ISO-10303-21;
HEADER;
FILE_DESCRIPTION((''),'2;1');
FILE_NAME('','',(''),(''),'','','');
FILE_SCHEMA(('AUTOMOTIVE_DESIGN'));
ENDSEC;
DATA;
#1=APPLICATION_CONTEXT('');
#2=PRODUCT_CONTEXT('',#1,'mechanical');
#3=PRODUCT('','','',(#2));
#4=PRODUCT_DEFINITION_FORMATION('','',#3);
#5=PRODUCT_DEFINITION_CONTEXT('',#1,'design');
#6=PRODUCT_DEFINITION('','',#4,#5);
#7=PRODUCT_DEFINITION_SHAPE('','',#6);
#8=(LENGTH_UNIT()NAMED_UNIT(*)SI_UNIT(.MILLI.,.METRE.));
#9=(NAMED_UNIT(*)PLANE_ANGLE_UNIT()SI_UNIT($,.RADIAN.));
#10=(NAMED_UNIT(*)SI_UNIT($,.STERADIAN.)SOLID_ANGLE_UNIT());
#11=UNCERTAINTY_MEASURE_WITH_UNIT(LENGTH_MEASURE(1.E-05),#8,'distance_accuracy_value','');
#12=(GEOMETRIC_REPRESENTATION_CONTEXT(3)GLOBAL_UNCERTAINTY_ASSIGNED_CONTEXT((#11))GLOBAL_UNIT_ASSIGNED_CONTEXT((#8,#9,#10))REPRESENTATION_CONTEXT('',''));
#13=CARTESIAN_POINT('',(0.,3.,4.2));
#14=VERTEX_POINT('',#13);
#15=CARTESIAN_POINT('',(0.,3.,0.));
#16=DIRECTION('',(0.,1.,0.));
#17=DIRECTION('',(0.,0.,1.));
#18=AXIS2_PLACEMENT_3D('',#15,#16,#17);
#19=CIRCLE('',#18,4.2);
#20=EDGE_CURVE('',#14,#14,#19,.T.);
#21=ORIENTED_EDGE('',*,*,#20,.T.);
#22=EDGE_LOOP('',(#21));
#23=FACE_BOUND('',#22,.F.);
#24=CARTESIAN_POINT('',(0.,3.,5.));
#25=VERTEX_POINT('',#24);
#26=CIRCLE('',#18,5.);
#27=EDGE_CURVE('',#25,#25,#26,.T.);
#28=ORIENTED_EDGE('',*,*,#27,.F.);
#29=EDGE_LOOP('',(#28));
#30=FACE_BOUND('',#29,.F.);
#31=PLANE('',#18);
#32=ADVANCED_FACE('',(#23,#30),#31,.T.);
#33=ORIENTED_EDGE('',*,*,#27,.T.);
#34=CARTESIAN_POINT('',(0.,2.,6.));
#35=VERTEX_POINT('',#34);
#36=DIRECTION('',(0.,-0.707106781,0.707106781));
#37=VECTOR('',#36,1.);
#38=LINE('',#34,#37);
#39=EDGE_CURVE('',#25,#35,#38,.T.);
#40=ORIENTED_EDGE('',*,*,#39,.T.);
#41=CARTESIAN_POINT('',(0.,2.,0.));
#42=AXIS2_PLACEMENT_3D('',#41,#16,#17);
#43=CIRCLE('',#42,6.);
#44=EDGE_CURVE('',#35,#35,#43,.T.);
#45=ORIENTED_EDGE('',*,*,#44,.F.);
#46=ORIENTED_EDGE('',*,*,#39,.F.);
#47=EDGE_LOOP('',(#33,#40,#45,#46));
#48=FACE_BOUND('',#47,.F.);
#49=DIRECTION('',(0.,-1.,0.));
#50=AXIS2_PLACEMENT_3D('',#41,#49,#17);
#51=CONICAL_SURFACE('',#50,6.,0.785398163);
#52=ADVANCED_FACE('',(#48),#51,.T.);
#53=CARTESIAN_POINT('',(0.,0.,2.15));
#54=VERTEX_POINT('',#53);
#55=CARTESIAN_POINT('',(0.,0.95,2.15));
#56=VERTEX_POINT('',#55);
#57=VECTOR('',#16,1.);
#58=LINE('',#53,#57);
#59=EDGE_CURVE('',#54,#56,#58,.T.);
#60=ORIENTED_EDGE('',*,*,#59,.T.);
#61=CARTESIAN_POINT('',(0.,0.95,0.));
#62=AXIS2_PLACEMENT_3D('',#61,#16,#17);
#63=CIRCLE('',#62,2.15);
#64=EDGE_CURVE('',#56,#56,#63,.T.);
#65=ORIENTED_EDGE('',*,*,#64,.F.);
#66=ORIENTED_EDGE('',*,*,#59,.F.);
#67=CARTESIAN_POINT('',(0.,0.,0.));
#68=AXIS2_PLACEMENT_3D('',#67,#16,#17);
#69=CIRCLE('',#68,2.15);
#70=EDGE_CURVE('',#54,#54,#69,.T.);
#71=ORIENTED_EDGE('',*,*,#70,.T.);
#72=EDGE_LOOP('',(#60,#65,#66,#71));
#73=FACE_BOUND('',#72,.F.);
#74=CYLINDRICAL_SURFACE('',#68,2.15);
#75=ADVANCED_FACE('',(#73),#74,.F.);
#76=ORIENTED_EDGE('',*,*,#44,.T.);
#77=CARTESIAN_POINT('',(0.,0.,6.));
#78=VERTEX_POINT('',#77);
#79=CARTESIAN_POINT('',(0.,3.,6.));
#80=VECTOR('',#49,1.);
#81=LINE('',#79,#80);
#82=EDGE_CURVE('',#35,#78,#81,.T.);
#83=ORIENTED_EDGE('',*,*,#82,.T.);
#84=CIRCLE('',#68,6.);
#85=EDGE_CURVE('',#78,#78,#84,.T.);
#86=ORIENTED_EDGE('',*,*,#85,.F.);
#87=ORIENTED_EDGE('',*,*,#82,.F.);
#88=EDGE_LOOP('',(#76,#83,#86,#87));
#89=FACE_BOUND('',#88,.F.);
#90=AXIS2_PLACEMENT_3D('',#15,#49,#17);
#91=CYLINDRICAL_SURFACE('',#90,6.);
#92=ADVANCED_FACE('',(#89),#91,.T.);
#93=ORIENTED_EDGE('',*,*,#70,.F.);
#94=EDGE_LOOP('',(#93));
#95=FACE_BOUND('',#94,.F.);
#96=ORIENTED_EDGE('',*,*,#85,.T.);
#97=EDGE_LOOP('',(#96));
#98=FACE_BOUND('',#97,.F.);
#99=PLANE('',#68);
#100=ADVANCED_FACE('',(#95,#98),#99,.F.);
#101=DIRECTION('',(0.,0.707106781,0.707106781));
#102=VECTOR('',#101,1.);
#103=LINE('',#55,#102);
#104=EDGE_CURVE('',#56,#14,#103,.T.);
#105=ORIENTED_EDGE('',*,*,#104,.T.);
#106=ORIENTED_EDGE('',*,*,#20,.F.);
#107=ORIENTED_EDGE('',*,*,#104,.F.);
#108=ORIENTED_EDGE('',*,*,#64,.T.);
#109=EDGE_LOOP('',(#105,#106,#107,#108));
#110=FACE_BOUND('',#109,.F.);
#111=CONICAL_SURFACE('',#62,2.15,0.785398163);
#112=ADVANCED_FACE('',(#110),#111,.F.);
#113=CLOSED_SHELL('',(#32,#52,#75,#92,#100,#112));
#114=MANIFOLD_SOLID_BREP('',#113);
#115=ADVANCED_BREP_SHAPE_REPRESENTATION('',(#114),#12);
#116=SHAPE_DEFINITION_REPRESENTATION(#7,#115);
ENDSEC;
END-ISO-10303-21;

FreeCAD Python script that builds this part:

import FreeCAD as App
import Part
import Sketcher
from FreeCAD import Vector
Q = App.Units.Quantity


def edges_at(feature, points):
    """Names of the edges that pass closest to the given points."""
    edges = feature.Shape.Edges
    near = lambda p: min(range(len(edges)), key=lambda i: edges[i].distToShape(Part.Vertex(*p))[0])
    return sorted({f"Edge{near(p) + 1}" for p in points})

doc = App.newDocument("Part")
body = doc.addObject("PartDesign::Body", "Body")

sketch1 = body.newObject("Sketcher::SketchObject", "Sketch")
sketch1.AttachmentSupport = (doc.getObject("YZ_Plane"), [""])
sketch1.MapMode = "FlatFace"
sketch1.addGeometry(Part.LineSegment(Vector(0, 6, 0), Vector(0, 2.1, 0)), False)
sketch1.addGeometry(Part.LineSegment(Vector(0, 2.1, 0), Vector(0.9, 2.1, 0)), False)
sketch1.addGeometry(Part.LineSegment(Vector(0.9, 2.1, 0), Vector(3, 4.2, 0)), False)
sketch1.addGeometry(Part.LineSegment(Vector(3, 4.2, 0), Vector(3, 6, 0)), False)
sketch1.addGeometry(Part.LineSegment(Vector(3, 6, 0), Vector(0, 6, 0)), False)
sketch1.addConstraint(Sketcher.Constraint("Coincident", 0, 2, 1, 1))
sketch1.addConstraint(Sketcher.Constraint("Coincident", 1, 2, 2, 1))
sketch1.addConstraint(Sketcher.Constraint("Coincident", 2, 2, 3, 1))
sketch1.addConstraint(Sketcher.Constraint("Coincident", 3, 2, 4, 1))
sketch1.addConstraint(Sketcher.Constraint("Coincident", 4, 2, 0, 1))
sketch1.addConstraint(Sketcher.Constraint("Vertical", 0))
sketch1.addConstraint(Sketcher.Constraint("Horizontal", 1))
sketch1.addConstraint(Sketcher.Constraint("Vertical", 3))
sketch1.addConstraint(Sketcher.Constraint("Horizontal", 4))
sketch1.addConstraint(Sketcher.Constraint("PointOnObject", 0, 2, -2))
sketch1.addConstraint(Sketcher.Constraint("DistanceX", 4, 2, 4, 1, Q("3 mm")))
sketch1.addConstraint(Sketcher.Constraint("Angle", 2, Q("45 deg")))
sketch1.addConstraint(Sketcher.Constraint("DistanceY", 3, 1, 3, 2, Q("1.8 mm")))
sketch1.addConstraint(Sketcher.Constraint("DistanceY", -1, 1, 3, 2, Q("6 mm")))
sketch1.addConstraint(Sketcher.Constraint("DistanceX", 1, 1, 1, 2, Q("0.95 mm")))
revolution = body.newObject("PartDesign::Revolution", "Revolution")
revolution.Profile = sketch1
revolution.ReferenceAxis = (sketch1, ["H_Axis"])
revolution.Angle = 360
doc.recompute()

chamfer = body.newObject("PartDesign::Chamfer", "Chamfer")
chamfer.Base = (revolution, edges_at(revolution, [(0, 3, -6)]))
chamfer.Size = 1

doc.recompute()
